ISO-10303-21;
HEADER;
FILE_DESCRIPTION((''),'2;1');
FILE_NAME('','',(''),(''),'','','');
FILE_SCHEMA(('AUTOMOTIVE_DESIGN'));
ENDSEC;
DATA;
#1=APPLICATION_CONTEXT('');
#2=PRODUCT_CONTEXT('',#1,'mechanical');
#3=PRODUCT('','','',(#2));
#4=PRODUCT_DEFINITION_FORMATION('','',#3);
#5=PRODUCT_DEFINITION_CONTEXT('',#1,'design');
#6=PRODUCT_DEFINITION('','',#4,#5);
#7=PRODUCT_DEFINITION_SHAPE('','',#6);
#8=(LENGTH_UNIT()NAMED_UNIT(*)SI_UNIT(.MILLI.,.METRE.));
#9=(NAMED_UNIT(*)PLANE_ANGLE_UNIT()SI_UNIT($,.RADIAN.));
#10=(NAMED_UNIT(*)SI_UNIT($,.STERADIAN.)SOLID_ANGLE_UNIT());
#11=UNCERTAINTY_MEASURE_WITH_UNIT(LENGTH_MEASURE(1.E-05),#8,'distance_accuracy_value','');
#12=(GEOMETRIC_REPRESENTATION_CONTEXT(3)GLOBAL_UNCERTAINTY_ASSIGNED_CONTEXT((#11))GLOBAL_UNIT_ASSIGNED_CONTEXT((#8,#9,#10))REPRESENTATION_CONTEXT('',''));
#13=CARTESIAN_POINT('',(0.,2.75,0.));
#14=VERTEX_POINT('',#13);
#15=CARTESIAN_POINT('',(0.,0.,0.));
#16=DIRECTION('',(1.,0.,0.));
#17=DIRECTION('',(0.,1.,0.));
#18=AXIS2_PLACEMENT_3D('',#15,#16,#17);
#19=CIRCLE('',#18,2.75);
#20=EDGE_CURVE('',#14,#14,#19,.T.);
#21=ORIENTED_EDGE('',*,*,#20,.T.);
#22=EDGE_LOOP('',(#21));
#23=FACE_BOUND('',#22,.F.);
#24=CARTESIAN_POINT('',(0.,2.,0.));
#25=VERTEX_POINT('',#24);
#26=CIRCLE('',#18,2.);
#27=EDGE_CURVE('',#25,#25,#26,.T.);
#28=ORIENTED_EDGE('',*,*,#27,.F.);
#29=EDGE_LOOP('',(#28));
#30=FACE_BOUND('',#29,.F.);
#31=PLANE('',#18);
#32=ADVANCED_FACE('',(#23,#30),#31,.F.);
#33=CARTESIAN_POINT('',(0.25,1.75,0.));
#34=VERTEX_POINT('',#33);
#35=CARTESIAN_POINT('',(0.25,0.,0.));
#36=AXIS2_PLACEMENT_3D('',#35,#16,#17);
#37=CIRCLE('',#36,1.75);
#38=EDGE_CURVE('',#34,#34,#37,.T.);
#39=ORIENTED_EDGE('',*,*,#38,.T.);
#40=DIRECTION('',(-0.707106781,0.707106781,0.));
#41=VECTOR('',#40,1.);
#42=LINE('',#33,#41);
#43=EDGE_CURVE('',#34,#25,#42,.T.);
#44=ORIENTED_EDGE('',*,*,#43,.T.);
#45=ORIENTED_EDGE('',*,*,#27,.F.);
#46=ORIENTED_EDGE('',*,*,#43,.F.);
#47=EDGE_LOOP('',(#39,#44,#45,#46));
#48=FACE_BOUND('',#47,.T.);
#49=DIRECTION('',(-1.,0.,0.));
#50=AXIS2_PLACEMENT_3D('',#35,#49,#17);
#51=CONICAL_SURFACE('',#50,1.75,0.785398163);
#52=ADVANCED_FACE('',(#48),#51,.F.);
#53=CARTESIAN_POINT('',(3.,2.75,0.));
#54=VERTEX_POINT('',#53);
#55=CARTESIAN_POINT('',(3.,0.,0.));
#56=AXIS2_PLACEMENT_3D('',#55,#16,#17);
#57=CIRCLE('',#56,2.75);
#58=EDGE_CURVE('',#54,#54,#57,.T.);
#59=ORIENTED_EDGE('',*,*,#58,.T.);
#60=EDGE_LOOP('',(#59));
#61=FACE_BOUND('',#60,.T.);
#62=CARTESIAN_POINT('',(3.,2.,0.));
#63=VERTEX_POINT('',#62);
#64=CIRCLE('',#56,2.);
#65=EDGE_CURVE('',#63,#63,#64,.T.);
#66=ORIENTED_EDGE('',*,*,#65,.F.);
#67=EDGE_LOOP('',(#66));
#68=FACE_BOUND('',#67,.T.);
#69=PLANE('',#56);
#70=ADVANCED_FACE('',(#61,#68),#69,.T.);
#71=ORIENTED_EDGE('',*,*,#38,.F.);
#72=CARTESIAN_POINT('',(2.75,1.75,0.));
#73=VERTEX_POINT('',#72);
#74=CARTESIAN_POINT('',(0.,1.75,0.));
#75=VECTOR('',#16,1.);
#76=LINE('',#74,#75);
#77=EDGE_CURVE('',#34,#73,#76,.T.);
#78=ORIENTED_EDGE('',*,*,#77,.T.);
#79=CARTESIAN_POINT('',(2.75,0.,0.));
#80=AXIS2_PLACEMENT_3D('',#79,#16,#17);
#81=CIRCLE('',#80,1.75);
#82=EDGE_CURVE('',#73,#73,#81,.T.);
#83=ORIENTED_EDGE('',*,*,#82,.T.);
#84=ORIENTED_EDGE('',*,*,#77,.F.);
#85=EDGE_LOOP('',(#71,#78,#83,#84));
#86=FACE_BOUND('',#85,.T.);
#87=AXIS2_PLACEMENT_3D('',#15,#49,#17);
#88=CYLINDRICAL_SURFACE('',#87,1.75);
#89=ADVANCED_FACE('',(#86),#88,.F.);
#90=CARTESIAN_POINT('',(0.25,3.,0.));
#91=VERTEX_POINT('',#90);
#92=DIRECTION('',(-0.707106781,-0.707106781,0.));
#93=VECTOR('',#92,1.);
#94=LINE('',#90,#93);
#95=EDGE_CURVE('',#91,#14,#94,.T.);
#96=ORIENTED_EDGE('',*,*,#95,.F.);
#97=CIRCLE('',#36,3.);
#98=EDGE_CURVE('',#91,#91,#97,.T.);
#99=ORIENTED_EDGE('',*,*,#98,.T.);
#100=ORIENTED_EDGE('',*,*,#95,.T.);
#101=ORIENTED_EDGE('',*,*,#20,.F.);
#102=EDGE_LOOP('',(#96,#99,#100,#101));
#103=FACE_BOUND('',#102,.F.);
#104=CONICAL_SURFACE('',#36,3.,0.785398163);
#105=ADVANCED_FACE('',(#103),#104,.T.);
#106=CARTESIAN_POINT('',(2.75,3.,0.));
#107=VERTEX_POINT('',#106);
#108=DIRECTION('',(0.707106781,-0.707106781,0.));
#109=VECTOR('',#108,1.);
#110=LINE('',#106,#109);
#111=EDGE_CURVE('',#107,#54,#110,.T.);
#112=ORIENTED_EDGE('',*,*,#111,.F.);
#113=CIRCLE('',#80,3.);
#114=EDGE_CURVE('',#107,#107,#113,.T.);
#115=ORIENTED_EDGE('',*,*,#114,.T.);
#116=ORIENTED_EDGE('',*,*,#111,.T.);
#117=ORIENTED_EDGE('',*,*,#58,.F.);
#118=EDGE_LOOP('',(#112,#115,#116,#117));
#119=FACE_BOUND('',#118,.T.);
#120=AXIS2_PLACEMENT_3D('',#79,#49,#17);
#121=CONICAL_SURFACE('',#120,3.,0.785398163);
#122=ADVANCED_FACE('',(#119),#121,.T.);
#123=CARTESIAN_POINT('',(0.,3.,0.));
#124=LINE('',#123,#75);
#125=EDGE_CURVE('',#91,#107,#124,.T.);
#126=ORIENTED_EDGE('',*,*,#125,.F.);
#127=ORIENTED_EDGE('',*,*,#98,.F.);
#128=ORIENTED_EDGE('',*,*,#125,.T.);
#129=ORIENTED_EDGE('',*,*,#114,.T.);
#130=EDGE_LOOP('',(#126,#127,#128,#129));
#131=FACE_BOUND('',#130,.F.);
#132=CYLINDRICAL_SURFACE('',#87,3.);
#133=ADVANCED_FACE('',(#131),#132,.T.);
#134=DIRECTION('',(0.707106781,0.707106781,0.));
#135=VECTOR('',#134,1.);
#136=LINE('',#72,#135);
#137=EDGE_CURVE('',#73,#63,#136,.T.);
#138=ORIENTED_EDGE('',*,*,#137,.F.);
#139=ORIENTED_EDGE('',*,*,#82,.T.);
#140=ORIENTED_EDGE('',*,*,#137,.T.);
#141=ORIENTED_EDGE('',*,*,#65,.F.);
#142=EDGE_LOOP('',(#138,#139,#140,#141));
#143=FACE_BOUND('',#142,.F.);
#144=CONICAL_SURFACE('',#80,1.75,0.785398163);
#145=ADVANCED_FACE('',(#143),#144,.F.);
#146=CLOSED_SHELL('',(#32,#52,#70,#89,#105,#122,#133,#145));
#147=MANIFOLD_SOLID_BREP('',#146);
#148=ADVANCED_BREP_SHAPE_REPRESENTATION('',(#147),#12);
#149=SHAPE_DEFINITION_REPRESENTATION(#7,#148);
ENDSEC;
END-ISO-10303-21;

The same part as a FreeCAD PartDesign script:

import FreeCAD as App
import Part
import Sketcher

V = App.Vector


def edges_at(feature, points):
    """Names of the edges that pass closest to the given points."""
    edges = feature.Shape.Edges
    near = lambda p: min(range(len(edges)), key=lambda i: edges[i].distToShape(Part.Vertex(*p))[0])
    return sorted({f"Edge{near(p) + 1}" for p in points})

doc = App.newDocument("Part")
params = doc.addObject("Spreadsheet::Sheet", "Params")
for row, (alias, value) in enumerate([
    ("sketch1_diameter", "6 mm"),
    ("sketch1_diameter2", "3.5 mm"),
    ("pad1_length", "3 mm"),
    ("chamfer_size", "0.25 mm"),
], start=1):
    params.set(f"A{row}", alias)
    params.set(f"B{row}", "=" + value)
    params.setAlias(f"B{row}", alias)

body = doc.addObject("PartDesign::Body", "Body")

# Sketch on YZ plane
sketch1 = body.newObject("Sketcher::SketchObject", "Sketch")
sketch1.AttachmentSupport = (doc.getObject("YZ_Plane"), [""])
sketch1.MapMode = "FlatFace"
sketch1.addGeometry(Part.Circle(V(0, 0, 0), V(0, 0, 1), 3), False)
sketch1.addGeometry(Part.Circle(V(0, 0, 0), V(0, 0, 1), 1.8), False)
sketch1.addConstraint(Sketcher.Constraint("Coincident", 0, 3, -1, 1))
sketch1.addConstraint(Sketcher.Constraint("Coincident", 1, 3, -1, 1))
sketch1.addConstraint(Sketcher.Constraint("Diameter", 0, 6.0))
sketch1.addConstraint(Sketcher.Constraint("Diameter", 1, 3.5))
sketch1.setExpression("Constraints[2]", "Params.sketch1_diameter")
sketch1.setExpression("Constraints[3]", "Params.sketch1_diameter2")
pad1 = body.newObject("PartDesign::Pad", "Pad")
pad1.Profile = sketch1
pad1.setExpression("Length", "Params.pad1_length")
doc.recompute()

chamfer = body.newObject("PartDesign::Chamfer", "Chamfer")
chamfer.Base = (pad1, edges_at(pad1, [
    (3, -3, 0),
    (0, -3, 0),
    (3, -1.75, 0),
    (0, -1.75, 0),
]))
chamfer.setExpression("Size", "Params.chamfer_size")

doc.recompute()
